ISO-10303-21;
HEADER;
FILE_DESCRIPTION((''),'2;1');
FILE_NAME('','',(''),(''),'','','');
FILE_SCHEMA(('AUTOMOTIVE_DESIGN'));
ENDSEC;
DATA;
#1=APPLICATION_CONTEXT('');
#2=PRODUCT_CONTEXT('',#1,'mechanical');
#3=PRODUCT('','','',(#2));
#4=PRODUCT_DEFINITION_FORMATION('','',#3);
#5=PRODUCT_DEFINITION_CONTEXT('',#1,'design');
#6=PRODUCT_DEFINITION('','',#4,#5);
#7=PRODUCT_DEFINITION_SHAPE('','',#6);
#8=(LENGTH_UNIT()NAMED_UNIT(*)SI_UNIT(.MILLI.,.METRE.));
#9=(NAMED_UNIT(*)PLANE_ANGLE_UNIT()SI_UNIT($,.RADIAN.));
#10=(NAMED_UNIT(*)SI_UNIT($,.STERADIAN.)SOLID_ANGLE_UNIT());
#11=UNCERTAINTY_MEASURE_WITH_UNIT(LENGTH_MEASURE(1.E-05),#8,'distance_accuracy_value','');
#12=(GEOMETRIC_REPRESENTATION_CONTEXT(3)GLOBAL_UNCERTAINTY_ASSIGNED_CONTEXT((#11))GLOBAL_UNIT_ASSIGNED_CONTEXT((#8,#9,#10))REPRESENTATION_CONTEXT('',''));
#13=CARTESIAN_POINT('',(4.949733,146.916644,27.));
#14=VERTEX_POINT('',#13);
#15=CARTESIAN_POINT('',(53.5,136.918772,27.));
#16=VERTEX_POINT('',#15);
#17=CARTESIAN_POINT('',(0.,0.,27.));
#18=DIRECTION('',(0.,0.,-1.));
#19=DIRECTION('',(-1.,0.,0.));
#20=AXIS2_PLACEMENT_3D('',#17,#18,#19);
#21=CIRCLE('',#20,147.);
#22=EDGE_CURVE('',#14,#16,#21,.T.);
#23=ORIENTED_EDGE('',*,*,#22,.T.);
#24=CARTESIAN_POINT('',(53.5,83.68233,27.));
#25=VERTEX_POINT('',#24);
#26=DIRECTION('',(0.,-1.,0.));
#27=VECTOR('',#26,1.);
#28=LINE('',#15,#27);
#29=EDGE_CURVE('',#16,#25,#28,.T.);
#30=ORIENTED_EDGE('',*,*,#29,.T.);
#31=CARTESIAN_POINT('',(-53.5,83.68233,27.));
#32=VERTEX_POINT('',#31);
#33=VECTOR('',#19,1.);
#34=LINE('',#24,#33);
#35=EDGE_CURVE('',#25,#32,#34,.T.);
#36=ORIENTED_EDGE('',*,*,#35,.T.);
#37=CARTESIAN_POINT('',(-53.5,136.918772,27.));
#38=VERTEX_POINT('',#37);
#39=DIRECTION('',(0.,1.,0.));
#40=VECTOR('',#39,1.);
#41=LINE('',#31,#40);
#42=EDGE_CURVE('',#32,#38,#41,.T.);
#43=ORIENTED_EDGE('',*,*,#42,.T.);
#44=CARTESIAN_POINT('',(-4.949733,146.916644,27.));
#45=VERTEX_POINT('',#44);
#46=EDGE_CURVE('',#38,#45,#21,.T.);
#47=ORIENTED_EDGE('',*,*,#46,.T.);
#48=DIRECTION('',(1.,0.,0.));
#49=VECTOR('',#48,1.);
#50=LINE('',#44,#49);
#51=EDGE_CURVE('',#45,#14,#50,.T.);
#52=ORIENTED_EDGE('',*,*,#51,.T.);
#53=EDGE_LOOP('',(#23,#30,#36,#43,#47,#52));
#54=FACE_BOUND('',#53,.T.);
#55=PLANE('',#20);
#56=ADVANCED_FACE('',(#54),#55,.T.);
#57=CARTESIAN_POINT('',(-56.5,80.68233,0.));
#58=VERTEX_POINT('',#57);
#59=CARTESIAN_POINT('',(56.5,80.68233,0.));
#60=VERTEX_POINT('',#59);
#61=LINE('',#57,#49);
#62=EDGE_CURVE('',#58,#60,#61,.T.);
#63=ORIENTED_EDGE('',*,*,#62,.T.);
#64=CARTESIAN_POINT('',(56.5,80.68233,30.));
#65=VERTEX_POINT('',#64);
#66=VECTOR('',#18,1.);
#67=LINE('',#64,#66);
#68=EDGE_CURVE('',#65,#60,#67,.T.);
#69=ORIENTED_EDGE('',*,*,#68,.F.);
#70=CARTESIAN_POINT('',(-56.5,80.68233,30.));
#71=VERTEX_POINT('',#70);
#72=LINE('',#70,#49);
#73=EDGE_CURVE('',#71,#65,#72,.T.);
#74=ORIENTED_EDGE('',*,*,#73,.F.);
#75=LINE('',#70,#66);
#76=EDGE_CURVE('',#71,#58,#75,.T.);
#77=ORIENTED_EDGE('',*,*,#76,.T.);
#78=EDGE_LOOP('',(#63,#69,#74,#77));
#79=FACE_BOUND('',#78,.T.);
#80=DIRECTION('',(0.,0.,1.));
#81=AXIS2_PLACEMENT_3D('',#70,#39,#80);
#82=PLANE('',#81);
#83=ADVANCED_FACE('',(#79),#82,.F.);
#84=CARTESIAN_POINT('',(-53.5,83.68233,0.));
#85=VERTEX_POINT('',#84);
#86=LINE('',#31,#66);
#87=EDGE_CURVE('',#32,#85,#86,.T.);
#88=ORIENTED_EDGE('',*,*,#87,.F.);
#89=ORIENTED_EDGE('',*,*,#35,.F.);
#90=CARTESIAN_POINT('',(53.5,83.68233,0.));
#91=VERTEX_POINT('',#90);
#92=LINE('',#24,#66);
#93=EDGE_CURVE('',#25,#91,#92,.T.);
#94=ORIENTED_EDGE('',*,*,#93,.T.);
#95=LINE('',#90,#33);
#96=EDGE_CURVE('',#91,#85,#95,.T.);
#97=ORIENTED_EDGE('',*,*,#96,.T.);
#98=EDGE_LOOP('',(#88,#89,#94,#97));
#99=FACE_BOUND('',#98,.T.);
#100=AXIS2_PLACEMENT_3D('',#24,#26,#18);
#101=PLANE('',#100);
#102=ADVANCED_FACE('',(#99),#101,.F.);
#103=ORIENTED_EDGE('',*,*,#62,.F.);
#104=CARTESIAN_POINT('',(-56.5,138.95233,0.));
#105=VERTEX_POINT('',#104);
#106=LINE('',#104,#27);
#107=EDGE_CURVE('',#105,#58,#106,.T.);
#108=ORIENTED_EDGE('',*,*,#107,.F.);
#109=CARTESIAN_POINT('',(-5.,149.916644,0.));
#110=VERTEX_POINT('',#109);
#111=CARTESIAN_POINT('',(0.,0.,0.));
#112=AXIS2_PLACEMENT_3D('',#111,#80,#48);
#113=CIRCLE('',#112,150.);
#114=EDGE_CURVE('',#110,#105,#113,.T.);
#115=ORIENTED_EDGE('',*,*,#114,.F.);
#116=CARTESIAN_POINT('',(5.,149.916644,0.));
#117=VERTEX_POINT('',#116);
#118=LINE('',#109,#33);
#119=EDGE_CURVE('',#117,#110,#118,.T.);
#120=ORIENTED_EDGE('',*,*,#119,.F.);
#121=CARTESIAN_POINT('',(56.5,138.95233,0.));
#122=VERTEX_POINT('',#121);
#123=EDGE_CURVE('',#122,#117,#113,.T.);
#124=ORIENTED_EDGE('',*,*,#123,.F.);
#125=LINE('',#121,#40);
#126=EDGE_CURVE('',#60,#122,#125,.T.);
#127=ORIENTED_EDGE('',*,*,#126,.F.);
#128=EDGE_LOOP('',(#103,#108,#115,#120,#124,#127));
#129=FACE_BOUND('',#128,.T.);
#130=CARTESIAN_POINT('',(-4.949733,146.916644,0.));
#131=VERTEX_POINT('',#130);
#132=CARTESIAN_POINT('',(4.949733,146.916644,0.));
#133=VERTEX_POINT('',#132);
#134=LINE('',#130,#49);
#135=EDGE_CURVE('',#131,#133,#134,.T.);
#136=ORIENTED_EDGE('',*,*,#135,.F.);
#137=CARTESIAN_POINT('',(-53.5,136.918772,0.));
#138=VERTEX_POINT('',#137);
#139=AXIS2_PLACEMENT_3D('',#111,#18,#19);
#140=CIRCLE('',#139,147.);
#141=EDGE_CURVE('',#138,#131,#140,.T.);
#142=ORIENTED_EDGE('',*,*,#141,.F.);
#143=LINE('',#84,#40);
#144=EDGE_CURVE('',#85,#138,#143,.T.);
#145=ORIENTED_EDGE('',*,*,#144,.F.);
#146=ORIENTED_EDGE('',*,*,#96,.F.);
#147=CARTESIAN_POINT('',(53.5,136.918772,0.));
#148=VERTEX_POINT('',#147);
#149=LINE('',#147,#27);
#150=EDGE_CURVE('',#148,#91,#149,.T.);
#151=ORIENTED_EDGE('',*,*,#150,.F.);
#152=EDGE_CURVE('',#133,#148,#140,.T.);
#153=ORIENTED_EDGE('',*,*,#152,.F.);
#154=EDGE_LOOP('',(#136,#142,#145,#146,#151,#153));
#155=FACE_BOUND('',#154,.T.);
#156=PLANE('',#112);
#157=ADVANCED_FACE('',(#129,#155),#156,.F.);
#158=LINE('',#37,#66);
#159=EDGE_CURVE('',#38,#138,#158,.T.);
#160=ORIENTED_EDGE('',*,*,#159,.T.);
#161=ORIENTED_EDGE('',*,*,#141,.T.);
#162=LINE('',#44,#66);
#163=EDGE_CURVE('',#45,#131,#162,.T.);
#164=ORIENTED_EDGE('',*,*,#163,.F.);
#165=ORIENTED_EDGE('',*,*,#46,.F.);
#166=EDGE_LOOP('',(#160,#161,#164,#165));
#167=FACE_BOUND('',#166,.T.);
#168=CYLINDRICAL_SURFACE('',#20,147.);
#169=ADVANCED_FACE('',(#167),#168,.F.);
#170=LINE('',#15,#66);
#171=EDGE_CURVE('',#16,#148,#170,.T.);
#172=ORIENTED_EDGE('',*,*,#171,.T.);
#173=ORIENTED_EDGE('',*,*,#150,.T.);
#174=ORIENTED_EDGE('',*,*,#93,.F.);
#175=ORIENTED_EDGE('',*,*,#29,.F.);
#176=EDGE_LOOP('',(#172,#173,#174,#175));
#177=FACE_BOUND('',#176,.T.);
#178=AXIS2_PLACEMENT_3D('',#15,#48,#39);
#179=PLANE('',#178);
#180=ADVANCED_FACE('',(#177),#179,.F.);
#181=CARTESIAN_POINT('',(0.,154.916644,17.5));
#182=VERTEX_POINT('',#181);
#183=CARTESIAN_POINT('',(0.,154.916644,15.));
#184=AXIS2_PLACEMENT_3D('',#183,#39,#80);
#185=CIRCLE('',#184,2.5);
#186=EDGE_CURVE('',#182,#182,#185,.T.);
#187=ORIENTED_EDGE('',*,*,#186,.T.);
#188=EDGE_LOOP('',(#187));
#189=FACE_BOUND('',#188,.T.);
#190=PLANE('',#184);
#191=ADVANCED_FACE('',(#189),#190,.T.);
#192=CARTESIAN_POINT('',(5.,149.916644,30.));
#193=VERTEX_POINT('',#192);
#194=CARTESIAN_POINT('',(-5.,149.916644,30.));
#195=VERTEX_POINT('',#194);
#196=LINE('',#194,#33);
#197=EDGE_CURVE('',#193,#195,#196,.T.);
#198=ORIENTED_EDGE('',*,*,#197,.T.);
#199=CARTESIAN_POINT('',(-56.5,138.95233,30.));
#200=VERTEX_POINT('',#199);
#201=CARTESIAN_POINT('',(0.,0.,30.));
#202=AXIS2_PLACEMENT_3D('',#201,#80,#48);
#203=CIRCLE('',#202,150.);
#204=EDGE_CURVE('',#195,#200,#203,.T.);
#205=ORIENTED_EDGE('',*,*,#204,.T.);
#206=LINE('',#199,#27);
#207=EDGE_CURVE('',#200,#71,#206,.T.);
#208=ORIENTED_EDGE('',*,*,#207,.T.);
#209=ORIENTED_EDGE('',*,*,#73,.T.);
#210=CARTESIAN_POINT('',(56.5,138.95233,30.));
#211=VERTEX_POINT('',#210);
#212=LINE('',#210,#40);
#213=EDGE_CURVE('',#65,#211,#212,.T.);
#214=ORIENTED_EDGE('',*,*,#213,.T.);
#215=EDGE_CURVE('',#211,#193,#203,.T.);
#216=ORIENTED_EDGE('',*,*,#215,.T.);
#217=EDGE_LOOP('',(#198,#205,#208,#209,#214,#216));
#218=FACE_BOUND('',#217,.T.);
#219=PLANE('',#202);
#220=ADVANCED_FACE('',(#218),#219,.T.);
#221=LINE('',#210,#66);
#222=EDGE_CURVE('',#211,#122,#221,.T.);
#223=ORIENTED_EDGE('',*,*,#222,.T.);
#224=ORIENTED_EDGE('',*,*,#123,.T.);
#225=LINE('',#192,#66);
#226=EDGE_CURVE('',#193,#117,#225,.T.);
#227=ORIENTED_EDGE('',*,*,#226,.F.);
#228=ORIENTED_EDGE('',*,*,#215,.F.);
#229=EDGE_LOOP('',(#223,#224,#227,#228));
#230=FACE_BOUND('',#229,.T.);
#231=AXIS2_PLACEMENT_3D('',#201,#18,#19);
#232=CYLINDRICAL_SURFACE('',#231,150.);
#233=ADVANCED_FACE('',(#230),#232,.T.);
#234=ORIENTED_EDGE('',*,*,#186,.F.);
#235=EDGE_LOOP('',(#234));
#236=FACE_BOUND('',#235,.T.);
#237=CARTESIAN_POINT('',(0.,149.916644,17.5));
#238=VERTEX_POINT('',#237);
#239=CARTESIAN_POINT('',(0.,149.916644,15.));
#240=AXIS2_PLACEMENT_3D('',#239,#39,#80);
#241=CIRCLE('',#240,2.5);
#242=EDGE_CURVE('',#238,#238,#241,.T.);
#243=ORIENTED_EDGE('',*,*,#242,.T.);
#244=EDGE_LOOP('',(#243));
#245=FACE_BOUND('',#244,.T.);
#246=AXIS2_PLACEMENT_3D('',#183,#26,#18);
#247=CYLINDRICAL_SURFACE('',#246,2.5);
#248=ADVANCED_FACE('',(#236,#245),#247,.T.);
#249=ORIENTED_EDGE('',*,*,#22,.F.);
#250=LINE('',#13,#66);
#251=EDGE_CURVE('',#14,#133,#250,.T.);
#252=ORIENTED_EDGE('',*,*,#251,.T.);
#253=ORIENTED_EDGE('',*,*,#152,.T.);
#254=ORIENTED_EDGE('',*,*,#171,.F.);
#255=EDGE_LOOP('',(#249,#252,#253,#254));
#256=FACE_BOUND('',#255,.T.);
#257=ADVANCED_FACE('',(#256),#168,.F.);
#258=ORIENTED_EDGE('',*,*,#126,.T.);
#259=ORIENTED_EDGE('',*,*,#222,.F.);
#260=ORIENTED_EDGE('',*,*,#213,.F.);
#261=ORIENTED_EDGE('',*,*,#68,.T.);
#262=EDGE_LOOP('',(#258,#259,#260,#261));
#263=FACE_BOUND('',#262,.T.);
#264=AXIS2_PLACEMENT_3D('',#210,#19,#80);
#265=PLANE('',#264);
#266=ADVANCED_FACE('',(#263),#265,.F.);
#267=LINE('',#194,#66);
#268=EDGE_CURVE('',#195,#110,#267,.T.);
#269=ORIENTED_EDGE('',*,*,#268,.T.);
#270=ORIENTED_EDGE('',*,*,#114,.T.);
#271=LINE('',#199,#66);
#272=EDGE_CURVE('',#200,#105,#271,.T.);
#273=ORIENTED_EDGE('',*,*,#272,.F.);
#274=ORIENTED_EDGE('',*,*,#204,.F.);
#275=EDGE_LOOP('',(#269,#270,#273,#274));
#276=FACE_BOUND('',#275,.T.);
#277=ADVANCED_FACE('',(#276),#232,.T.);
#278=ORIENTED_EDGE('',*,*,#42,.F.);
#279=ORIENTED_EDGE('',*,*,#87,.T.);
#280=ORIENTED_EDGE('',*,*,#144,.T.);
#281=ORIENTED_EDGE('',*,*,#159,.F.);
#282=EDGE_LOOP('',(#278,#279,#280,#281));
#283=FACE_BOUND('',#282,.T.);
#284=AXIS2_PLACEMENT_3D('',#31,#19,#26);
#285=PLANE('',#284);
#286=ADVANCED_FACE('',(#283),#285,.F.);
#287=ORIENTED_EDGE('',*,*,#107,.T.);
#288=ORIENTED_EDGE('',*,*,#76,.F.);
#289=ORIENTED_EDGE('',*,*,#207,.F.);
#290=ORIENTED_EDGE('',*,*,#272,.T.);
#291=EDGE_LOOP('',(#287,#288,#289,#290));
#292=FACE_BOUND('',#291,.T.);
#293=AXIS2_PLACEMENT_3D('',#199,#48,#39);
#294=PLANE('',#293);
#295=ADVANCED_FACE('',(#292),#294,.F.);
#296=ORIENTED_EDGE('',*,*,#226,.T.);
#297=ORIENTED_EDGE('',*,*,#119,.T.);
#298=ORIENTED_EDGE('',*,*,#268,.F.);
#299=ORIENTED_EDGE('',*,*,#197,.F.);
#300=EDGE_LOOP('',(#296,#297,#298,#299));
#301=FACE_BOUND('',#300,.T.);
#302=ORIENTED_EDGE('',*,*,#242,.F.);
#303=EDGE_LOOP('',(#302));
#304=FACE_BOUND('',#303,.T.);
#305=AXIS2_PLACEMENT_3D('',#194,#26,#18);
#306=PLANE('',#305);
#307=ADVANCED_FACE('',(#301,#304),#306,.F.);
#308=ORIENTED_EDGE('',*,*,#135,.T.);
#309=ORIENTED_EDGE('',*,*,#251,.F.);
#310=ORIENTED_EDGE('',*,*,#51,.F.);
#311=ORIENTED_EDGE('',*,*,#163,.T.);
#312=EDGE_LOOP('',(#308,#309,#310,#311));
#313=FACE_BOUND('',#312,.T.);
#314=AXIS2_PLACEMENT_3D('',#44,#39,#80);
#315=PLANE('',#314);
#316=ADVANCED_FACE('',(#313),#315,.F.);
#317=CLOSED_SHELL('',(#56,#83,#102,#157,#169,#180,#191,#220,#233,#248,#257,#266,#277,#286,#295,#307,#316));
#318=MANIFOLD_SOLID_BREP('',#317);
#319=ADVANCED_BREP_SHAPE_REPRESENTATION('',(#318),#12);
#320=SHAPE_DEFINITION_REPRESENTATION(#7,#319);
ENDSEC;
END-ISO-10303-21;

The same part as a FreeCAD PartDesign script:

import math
import FreeCAD as App
import Part
import Sketcher

doc = App.newDocument("Part")
body = doc.addObject("PartDesign::Body", "Body")

sketch1 = body.newObject("Sketcher::SketchObject", "Sketch")
sketch1.AttachmentSupport = (doc.getObject("XY_Plane"), [""])
sketch1.MapMode = "FlatFace"
sketch1.addGeometry([
    Part.LineSegment(App.Vector(5, 149.916644, 0), App.Vector(-5, 149.916644, 0)),
    Part.ArcOfCircle(Part.Circle(App.Vector(0, 0, 0), App.Vector(0, 0, 1), 150), math.radians(91.910213), math.radians(112.127361)),
    Part.LineSegment(App.Vector(-56.5, 138.95233, 0), App.Vector(-56.5, 80.68233, 0)),
    Part.LineSegment(App.Vector(-56.5, 80.68233, 0), App.Vector(56.5, 80.68233, 0)),
    Part.LineSegment(App.Vector(56.5, 80.68233, 0), App.Vector(56.5, 138.95233, 0)),
    Part.ArcOfCircle(Part.Circle(App.Vector(0, 0, 0), App.Vector(0, 0, 1), 150), math.radians(67.872639), math.radians(88.089787)),
], False)
sketch1.addConstraint([
    Sketcher.Constraint("Coincident", 0, 2, 1, 1),
    Sketcher.Constraint("Coincident", 1, 2, 2, 1),
    Sketcher.Constraint("Coincident", 2, 2, 3, 1),
    Sketcher.Constraint("Coincident", 3, 2, 4, 1),
    Sketcher.Constraint("Coincident", 4, 2, 5, 1),
    Sketcher.Constraint("Coincident", 5, 2, 0, 1),
    Sketcher.Constraint("Horizontal", 0),
    Sketcher.Constraint("Vertical", 2),
    Sketcher.Constraint("Horizontal", 3),
    Sketcher.Constraint("Vertical", 4),
    Sketcher.Constraint("Coincident", 1, 3, -1, 1),
    Sketcher.Constraint("Coincident", 5, 3, -1, 1),
    Sketcher.Constraint("Equal", 1, 5),
    Sketcher.Constraint("Horizontal", 1, 2, 4, 2),
    Sketcher.Constraint("Radius", 1, 150.0),
    Sketcher.Constraint("DistanceX", 0, 2, 0, 1, 10.0),
    Sketcher.Constraint("DistanceX", 3, 1, 3, 2, 113.0),
    Sketcher.Constraint("DistanceY", 2, 2, 2, 1, 58.27),
])
pad1 = body.newObject("PartDesign::Pad", "Pad")
pad1.Profile = sketch1
pad1.Length = 30

sketch2 = body.newObject("Sketcher::SketchObject", "Sketch001")
sketch2.AttachmentSupport = (doc.getObject("XY_Plane"), [""])
sketch2.MapMode = "FlatFace"
sketch2.addGeometry([
    Part.LineSegment(App.Vector(-4.949733, 146.916644, 0), App.Vector(4.949733, 146.916644, 0)),
    Part.ArcOfCircle(Part.Circle(App.Vector(0, 0, 0), App.Vector(0, 0, 1), 147), math.radians(68.657294), math.radians(88.070391)),
    Part.LineSegment(App.Vector(53.5, 136.918772, 0), App.Vector(53.5, 83.68233, 0)),
    Part.LineSegment(App.Vector(53.5, 83.68233, 0), App.Vector(-53.5, 83.68233, 0)),
    Part.LineSegment(App.Vector(-53.5, 83.68233, 0), App.Vector(-53.5, 136.918772, 0)),
    Part.ArcOfCircle(Part.Circle(App.Vector(0, 0, 0), App.Vector(0, 0, 1), 147), math.radians(91.929609), math.radians(111.342706)),
], False)
sketch2.addConstraint([
    Sketcher.Constraint("Coincident", 0, 2, 1, 2),
    Sketcher.Constraint("Coincident", 1, 1, 2, 1),
    Sketcher.Constraint("Coincident", 2, 2, 3, 1),
    Sketcher.Constraint("Coincident", 3, 2, 4, 1),
    Sketcher.Constraint("Coincident", 4, 2, 5, 2),
    Sketcher.Constraint("Coincident", 5, 1, 0, 1),
    Sketcher.Constraint("Horizontal", 0),
    Sketcher.Constraint("Vertical", 2),
    Sketcher.Constraint("Horizontal", 3),
    Sketcher.Constraint("Vertical", 4),
    Sketcher.Constraint("Coincident", 1, 3, -1, 1),
    Sketcher.Constraint("Coincident", 5, 3, -1, 1),
    Sketcher.Constraint("Equal", 1, 5),
    Sketcher.Constraint("Horizontal", 1, 1, 4, 2),
    Sketcher.Constraint("Radius", 1, 147.0),
    Sketcher.Constraint("DistanceX", 3, 2, 3, 1, 107.0),
    Sketcher.Constraint("DistanceY", 2, 2, 2, 1, 53.236442),
    Sketcher.Constraint("DistanceX", 0, 1, 0, 2, 9.899467),
])
pocket1 = body.newObject("PartDesign::Pocket", "Pocket")
pocket1.Profile = sketch2
pocket1.Length = 27
pocket1.Reversed = True

sketch3 = body.newObject("Sketcher::SketchObject", "Sketch002")
sketch3.AttachmentSupport = (doc.getObject("XZ_Plane"), [""])
sketch3.MapMode = "FlatFace"
sketch3.AttachmentOffset = App.Placement(App.Vector(0, 0, -149.916644), App.Rotation())
sketch3.addGeometry(Part.Circle(App.Vector(0, 15, 0), App.Vector(0, 0, 1), 2.5), False)
sketch3.addConstraint([
    Sketcher.Constraint("PointOnObject", 0, 3, -2),
    Sketcher.Constraint("Diameter", 0, 5.0),
    Sketcher.Constraint("DistanceY", -1, 1, 0, 3, 15.0),
])
pad2 = body.newObject("PartDesign::Pad", "Pad001")
pad2.Profile = sketch3
pad2.Length = 5
pad2.Reversed = True

doc.recompute()
